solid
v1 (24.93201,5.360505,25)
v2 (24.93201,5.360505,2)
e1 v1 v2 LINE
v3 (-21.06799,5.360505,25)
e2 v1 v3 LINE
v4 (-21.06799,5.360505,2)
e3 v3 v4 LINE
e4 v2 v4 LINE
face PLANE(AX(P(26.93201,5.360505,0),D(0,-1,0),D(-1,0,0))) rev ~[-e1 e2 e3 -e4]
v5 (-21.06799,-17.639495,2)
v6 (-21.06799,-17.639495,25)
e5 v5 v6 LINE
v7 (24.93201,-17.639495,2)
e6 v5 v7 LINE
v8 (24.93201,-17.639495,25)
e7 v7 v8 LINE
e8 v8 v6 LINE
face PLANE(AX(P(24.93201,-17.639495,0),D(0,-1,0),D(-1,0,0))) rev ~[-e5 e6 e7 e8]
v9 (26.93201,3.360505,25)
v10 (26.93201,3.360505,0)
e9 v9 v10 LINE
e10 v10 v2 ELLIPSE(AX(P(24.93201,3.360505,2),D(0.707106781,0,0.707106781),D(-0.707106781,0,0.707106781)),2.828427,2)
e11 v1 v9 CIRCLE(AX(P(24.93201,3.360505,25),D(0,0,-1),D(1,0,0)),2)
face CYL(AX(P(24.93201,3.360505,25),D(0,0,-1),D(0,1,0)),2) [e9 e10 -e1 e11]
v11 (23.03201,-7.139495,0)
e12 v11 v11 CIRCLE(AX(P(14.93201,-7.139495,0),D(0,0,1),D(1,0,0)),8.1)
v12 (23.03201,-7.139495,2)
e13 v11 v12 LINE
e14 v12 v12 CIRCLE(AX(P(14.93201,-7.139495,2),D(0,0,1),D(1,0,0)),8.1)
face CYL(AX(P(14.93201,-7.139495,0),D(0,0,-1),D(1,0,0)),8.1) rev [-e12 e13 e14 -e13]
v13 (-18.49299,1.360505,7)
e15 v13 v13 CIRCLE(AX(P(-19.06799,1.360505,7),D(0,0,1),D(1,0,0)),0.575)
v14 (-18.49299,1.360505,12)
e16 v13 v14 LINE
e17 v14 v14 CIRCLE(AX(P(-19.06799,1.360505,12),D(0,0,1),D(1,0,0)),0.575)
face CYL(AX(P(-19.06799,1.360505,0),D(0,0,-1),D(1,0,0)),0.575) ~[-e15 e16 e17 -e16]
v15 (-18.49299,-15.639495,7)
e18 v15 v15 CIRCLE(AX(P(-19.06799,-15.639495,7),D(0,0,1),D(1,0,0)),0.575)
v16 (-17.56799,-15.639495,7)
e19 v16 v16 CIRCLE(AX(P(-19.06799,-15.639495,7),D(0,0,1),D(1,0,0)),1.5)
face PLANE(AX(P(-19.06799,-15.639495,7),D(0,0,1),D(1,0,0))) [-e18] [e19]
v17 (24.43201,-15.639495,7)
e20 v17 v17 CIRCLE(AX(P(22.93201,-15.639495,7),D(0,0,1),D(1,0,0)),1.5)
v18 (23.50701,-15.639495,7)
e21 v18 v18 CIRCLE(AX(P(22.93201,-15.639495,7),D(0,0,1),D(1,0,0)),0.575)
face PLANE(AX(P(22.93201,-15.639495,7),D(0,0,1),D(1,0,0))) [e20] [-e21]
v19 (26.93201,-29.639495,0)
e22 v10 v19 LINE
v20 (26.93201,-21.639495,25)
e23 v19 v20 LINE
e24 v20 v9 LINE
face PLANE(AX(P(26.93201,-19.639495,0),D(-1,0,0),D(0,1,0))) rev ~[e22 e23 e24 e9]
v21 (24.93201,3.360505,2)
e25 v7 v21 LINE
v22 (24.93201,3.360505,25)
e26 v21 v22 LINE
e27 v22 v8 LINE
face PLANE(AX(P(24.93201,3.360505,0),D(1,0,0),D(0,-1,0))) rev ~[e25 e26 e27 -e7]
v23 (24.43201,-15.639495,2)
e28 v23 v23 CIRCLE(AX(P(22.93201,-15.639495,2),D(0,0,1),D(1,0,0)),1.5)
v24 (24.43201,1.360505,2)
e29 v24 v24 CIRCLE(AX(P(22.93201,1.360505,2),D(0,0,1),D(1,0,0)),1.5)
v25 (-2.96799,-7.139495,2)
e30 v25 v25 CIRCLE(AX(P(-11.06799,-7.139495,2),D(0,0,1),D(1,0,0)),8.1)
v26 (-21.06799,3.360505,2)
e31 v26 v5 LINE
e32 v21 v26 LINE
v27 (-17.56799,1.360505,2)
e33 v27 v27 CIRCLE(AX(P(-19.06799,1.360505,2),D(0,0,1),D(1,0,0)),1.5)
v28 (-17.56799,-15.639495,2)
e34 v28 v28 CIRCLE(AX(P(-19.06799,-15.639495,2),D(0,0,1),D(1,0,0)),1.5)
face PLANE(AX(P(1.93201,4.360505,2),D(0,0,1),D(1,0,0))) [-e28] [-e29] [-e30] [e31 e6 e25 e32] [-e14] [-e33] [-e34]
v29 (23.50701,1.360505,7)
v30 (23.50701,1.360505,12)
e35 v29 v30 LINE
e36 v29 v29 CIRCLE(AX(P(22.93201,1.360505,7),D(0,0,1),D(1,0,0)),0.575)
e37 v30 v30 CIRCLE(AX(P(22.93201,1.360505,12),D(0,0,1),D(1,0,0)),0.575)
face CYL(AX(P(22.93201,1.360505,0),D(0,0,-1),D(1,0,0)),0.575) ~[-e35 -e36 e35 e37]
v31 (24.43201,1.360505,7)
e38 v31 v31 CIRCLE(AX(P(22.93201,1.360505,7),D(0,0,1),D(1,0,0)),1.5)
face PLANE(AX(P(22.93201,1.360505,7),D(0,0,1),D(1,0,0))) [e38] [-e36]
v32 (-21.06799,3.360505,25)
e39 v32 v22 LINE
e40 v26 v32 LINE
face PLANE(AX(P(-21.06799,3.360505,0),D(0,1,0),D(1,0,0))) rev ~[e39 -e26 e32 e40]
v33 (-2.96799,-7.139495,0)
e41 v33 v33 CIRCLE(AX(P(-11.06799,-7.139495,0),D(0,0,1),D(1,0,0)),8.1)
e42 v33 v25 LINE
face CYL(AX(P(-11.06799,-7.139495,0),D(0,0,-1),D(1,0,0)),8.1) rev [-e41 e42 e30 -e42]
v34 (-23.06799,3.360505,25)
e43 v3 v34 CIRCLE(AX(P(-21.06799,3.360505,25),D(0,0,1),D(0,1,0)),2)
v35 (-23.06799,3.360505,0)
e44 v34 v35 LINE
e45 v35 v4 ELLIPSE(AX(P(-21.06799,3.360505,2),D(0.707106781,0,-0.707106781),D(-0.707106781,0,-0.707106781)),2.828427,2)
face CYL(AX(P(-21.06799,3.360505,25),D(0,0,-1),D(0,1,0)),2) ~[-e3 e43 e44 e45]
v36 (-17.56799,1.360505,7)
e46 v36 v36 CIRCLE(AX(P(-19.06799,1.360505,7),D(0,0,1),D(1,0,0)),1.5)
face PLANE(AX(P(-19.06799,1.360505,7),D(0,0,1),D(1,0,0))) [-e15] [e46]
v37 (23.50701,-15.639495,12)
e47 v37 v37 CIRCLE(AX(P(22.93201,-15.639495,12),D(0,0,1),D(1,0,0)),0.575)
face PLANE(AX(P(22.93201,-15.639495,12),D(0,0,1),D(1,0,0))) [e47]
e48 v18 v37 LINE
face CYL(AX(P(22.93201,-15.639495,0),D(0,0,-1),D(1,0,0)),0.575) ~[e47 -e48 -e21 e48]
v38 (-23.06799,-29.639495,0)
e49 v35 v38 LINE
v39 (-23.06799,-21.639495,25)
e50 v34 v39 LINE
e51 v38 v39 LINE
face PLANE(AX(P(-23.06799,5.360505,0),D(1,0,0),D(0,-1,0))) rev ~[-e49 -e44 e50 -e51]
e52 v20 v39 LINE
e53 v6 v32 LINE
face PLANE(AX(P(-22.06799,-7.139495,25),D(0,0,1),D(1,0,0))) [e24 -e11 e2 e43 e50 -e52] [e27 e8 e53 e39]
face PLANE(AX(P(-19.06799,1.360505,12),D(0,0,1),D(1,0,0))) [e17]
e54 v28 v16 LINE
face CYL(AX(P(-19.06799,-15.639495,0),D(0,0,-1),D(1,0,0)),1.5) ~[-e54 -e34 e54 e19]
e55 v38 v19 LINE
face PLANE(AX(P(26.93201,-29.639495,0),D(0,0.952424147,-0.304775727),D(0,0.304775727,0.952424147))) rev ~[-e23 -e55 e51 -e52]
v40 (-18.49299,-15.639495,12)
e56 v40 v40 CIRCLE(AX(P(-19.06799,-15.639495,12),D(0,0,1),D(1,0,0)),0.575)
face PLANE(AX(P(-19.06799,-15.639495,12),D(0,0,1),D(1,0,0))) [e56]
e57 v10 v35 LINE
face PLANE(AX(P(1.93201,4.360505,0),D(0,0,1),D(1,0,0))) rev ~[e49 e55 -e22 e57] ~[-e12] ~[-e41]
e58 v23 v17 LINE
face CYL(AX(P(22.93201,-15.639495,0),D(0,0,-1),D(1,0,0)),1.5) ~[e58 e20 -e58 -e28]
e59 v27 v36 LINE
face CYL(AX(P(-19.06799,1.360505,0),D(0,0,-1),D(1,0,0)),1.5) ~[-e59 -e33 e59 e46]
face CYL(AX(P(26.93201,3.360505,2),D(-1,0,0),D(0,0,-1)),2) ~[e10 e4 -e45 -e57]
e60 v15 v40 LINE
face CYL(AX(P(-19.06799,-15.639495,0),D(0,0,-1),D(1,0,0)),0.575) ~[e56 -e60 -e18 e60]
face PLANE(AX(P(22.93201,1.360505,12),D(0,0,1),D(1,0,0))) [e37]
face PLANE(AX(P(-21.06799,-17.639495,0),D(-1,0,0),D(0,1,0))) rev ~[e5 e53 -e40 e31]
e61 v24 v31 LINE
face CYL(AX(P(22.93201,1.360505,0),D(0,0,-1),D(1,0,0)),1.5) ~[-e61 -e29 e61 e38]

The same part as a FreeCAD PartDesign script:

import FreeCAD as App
import Part
import Sketcher
Q = App.Units.Quantity


def edges_at(feature, points):
    """Names of the edges that pass closest to the given points."""
    edges = feature.Shape.Edges
    near = lambda p: min(range(len(edges)), key=lambda i: edges[i].distToShape(Part.Vertex(*p))[0])
    return sorted({f"Edge{near(p) + 1}" for p in points})


def add_polygon(sketch, points):
    """Adds a closed chain of lines whose ends are joined by coincident constraints."""
    first, n = sketch.GeometryCount, len(points)
    for a, b in zip(points, points[1:] + points[:1]):
        sketch.addGeometry(Part.LineSegment(App.Vector(*a, 0), App.Vector(*b, 0)), False)
    for i in range(n):
        sketch.addConstraint(Sketcher.Constraint("Coincident", first + i, 2, first + (i + 1) % n, 1))

doc = App.newDocument("Part")
body = doc.addObject("PartDesign::Body", "Body")

sketch1 = body.newObject("Sketcher::SketchObject", "Sketch")
sketch1.AttachmentSupport = (doc.getObject("XY_Plane"), [""])
sketch1.MapMode = "FlatFace"
add_polygon(sketch1, [(-23.1, 5.4), (-23.1, -19.6), (26.9, -19.6), (26.9, 5.4)])
sketch1.addGeometry(Part.Circle(App.Vector(-19.1, -15.6, 0), App.Vector(0, 0, 1), 1.5), False)
sketch1.addGeometry(Part.Circle(App.Vector(22.9, -15.6, 0), App.Vector(0, 0, 1), 1.5), False)
sketch1.addGeometry(Part.Circle(App.Vector(-11.1, -7.1, 0), App.Vector(0, 0, 1), 8.1), False)
sketch1.addGeometry(Part.Circle(App.Vector(-19.1, 1.4, 0), App.Vector(0, 0, 1), 1.5), False)
sketch1.addGeometry(Part.Circle(App.Vector(14.9, -7.1, 0), App.Vector(0, 0, 1), 8.1), False)
sketch1.addGeometry(Part.Circle(App.Vector(22.9, 1.4, 0), App.Vector(0, 0, 1), 1.5), False)
sketch1.addConstraint([
    Sketcher.Constraint("Vertical", 0),
    Sketcher.Constraint("Horizontal", 1),
    Sketcher.Constraint("Vertical", 2),
    Sketcher.Constraint("Horizontal", 3),
    Sketcher.Constraint("Equal", 4, 5),
    Sketcher.Constraint("Equal", 5, 7),
    Sketcher.Constraint("Equal", 6, 8),
    Sketcher.Constraint("Equal", 7, 9),
    Sketcher.Constraint("Horizontal", 4, 3, 5, 3),
    Sketcher.Constraint("Horizontal", 6, 3, 8, 3),
    Sketcher.Constraint("Horizontal", 7, 3, 9, 3),
    Sketcher.Constraint("Vertical", 4, 3, 7, 3),
    Sketcher.Constraint("Vertical", 5, 3, 9, 3),
    Sketcher.Constraint("Diameter", 4, Q("3 mm")),
    Sketcher.Constraint("Diameter", 6, Q("16.2 mm")),
    Sketcher.Constraint("DistanceX", 1, 1, 1, 2, Q("50 mm")),
    Sketcher.Constraint("DistanceY", 0, 2, 0, 1, Q("25 mm")),
    Sketcher.Constraint("DistanceX", 4, 3, 5, 3, Q("42 mm")),
    Sketcher.Constraint("DistanceX", 4, 3, 6, 3, Q("8 mm")),
    Sketcher.Constraint("DistanceY", 4, 3, 7, 3, Q("17 mm")),
    Sketcher.Constraint("DistanceX", 8, 3, 5, 3, Q("8 mm")),
    Sketcher.Constraint("DistanceX", 0, 2, 4, 3, Q("4 mm")),
    Sketcher.Constraint("DistanceY", 0, 2, 4, 3, Q("4 mm")),
    Sketcher.Constraint("DistanceY", 4, 3, 6, 3, Q("8.5 mm")),
    Sketcher.Constraint("DistanceX", 4, 3, -1, 1, Q("19.06799 mm")),
    Sketcher.Constraint("DistanceY", 4, 3, -1, 1, Q("15.639495 mm")),
])
pad1 = body.newObject("PartDesign::Pad", "Pad")
pad1.Profile = sketch1
pad1.Length = 2

sketch2 = body.newObject("Sketcher::SketchObject", "Sketch001")
sketch2.AttachmentSupport = (doc.getObject("XY_Plane"), [""])
sketch2.MapMode = "FlatFace"
add_polygon(sketch2, [(27, 5), (-23, 5), (-23, -30), (27, -30)])
add_polygon(sketch2, [(25, 3), (25, -18), (-21, -18), (-21, 3)])
sketch2.addConstraint([
    Sketcher.Constraint("Horizontal", 0),
    Sketcher.Constraint("Vertical", 1),
    Sketcher.Constraint("Horizontal", 2),
    Sketcher.Constraint("Vertical", 3),
    Sketcher.Constraint("Vertical", 4),
    Sketcher.Constraint("Horizontal", 5),
    Sketcher.Constraint("Vertical", 6),
    Sketcher.Constraint("Horizontal", 7),
    Sketcher.Constraint("DistanceX", 0, 2, 0, 1, Q("50 mm")),
    Sketcher.Constraint("DistanceX", 5, 2, 5, 1, Q("46 mm")),
    Sketcher.Constraint("DistanceY", 1, 2, 1, 1, Q("35 mm")),
    Sketcher.Constraint("DistanceY", 4, 2, 4, 1, Q("21 mm")),
    Sketcher.Constraint("DistanceX", 4, 2, 2, 2, Q("2 mm")),
    Sketcher.Constraint("DistanceY", 2, 2, 4, 2, Q("12 mm")),
    Sketcher.Constraint("DistanceX", 0, 2, -1, 1, Q("23.06799 mm")),
    Sketcher.Constraint("DistanceY", -1, 1, 0, 2, Q("5.360505 mm")),
])
pad2 = body.newObject("PartDesign::Pad", "Pad001")
pad2.Profile = sketch2
pad2.Length = 25

sketch3 = body.newObject("Sketcher::SketchObject", "Sketch002")
sketch3.AttachmentSupport = (doc.getObject("XY_Plane"), [""])
sketch3.MapMode = "FlatFace"
sketch3.addGeometry([
    Part.Circle(App.Vector(-19.1, 1.4, 0), App.Vector(0, 0, 1), 1.5),
    Part.Circle(App.Vector(-19.1, 1.4, 0), App.Vector(0, 0, 1), 0.6),
    Part.Circle(App.Vector(-19.1, -15.6, 0), App.Vector(0, 0, 1), 1.5),
    Part.Circle(App.Vector(-19.1, -15.6, 0), App.Vector(0, 0, 1), 0.6),
    Part.Circle(App.Vector(22.9, 1.4, 0), App.Vector(0, 0, 1), 1.5),
    Part.Circle(App.Vector(22.9, 1.4, 0), App.Vector(0, 0, 1), 0.6),
    Part.Circle(App.Vector(22.9, -15.6, 0), App.Vector(0, 0, 1), 1.5),
    Part.Circle(App.Vector(22.9, -15.6, 0), App.Vector(0, 0, 1), 0.6),
], False)
sketch3.addConstraint([
    Sketcher.Constraint("Coincident", 1, 3, 0, 3),
    Sketcher.Constraint("Coincident", 3, 3, 2, 3),
    Sketcher.Constraint("Coincident", 5, 3, 4, 3),
    Sketcher.Constraint("Coincident", 7, 3, 6, 3),
    Sketcher.Constraint("Equal", 0, 2),
    Sketcher.Constraint("Equal", 1, 3),
    Sketcher.Constraint("Equal", 2, 4),
    Sketcher.Constraint("Equal", 3, 5),
    Sketcher.Constraint("Equal", 4, 6),
    Sketcher.Constraint("Equal", 5, 7),
    Sketcher.Constraint("Horizontal", 1, 3, 4, 3),
    Sketcher.Constraint("Horizontal", 3, 3, 6, 3),
    Sketcher.Constraint("Vertical", 1, 3, 2, 3),
    Sketcher.Constraint("Vertical", 5, 3, 6, 3),
    Sketcher.Constraint("Diameter", 0, Q("3 mm")),
    Sketcher.Constraint("Diameter", 1, Q("1.15 mm")),
    Sketcher.Constraint("DistanceY", 2, 3, 0, 3, Q("17 mm")),
    Sketcher.Constraint("DistanceX", 0, 3, 4, 3, Q("42 mm")),
    Sketcher.Constraint("DistanceX", 0, 3, -1, 1, Q("19.06799 mm")),
    Sketcher.Constraint("DistanceY", -1, 1, 0, 3, Q("1.360505 mm")),
])
pad3 = body.newObject("PartDesign::Pad", "Pad002")
pad3.Profile = sketch3
pad3.Length = 7

sketch4 = body.newObject("Sketcher::SketchObject", "Sketch003")
sketch4.AttachmentSupport = (doc.getObject("XY_Plane"), [""])
sketch4.MapMode = "FlatFace"
sketch4.addGeometry([
    Part.Circle(App.Vector(-19.1, 1.4, 0), App.Vector(0, 0, 1), 0.6),
    Part.Circle(App.Vector(-19.1, -15.6, 0), App.Vector(0, 0, 1), 0.6),
    Part.Circle(App.Vector(22.9, -15.6, 0), App.Vector(0, 0, 1), 0.6),
    Part.Circle(App.Vector(22.9, 1.4, 0), App.Vector(0, 0, 1), 0.6),
], False)
sketch4.addConstraint([
    Sketcher.Constraint("Equal", 0, 1),
    Sketcher.Constraint("Equal", 1, 2),
    Sketcher.Constraint("Equal", 2, 3),
    Sketcher.Constraint("Horizontal", 1, 3, 2, 3),
    Sketcher.Constraint("Horizontal", 0, 3, 3, 3),
    Sketcher.Constraint("Vertical", 0, 3, 1, 3),
    Sketcher.Constraint("Vertical", 2, 3, 3, 3),
    Sketcher.Constraint("Diameter", 0, Q("1.15 mm")),
    Sketcher.Constraint("DistanceY", 1, 3, 0, 3, Q("17 mm")),
    Sketcher.Constraint("DistanceX", 1, 3, 2, 3, Q("42 mm")),
    Sketcher.Constraint("DistanceX", 0, 3, -1, 1, Q("19.06799 mm")),
    Sketcher.Constraint("DistanceY", -1, 1, 0, 3, Q("1.360505 mm")),
])
pad4 = body.newObject("PartDesign::Pad", "Pad003")
pad4.Profile = sketch4
pad4.Length = 12
doc.recompute()

fillet = body.newObject("PartDesign::Fillet", "Fillet")
fillet.Base = (pad4, edges_at(pad4, [(1.932, 5.361, 0), (26.932, 5.361, 12.5), (-23.068, 5.361, 12.5)]))
fillet.Radius = 2

sketch5 = body.newObject("Sketcher::SketchObject", "Sketch004")
sketch5.AttachmentSupport = (doc.getObject("YZ_Plane"), [""])
sketch5.MapMode = "FlatFace"
sketch5.AttachmentOffset = App.Placement(App.Vector(0, 0, 26.93201), App.Rotation())
add_polygon(sketch5, [(-30, 0), (-22, 25), (-30, 25)])
sketch5.addConstraint([
    Sketcher.Constraint("Horizontal", 1),
    Sketcher.Constraint("Vertical", 2),
    Sketcher.Constraint("PointOnObject", 2, 2, -1),
    Sketcher.Constraint("DistanceX", 1, 2, 1, 1, Q("8 mm")),
    Sketcher.Constraint("DistanceY", 2, 2, 2, 1, Q("25 mm")),
    Sketcher.Constraint("DistanceX", 0, 2, -1, 1, Q("21.639495 mm")),
])
pocket1 = body.newObject("PartDesign::Pocket", "Pocket")
pocket1.Profile = sketch5
pocket1.Length = 52

doc.recompute()
